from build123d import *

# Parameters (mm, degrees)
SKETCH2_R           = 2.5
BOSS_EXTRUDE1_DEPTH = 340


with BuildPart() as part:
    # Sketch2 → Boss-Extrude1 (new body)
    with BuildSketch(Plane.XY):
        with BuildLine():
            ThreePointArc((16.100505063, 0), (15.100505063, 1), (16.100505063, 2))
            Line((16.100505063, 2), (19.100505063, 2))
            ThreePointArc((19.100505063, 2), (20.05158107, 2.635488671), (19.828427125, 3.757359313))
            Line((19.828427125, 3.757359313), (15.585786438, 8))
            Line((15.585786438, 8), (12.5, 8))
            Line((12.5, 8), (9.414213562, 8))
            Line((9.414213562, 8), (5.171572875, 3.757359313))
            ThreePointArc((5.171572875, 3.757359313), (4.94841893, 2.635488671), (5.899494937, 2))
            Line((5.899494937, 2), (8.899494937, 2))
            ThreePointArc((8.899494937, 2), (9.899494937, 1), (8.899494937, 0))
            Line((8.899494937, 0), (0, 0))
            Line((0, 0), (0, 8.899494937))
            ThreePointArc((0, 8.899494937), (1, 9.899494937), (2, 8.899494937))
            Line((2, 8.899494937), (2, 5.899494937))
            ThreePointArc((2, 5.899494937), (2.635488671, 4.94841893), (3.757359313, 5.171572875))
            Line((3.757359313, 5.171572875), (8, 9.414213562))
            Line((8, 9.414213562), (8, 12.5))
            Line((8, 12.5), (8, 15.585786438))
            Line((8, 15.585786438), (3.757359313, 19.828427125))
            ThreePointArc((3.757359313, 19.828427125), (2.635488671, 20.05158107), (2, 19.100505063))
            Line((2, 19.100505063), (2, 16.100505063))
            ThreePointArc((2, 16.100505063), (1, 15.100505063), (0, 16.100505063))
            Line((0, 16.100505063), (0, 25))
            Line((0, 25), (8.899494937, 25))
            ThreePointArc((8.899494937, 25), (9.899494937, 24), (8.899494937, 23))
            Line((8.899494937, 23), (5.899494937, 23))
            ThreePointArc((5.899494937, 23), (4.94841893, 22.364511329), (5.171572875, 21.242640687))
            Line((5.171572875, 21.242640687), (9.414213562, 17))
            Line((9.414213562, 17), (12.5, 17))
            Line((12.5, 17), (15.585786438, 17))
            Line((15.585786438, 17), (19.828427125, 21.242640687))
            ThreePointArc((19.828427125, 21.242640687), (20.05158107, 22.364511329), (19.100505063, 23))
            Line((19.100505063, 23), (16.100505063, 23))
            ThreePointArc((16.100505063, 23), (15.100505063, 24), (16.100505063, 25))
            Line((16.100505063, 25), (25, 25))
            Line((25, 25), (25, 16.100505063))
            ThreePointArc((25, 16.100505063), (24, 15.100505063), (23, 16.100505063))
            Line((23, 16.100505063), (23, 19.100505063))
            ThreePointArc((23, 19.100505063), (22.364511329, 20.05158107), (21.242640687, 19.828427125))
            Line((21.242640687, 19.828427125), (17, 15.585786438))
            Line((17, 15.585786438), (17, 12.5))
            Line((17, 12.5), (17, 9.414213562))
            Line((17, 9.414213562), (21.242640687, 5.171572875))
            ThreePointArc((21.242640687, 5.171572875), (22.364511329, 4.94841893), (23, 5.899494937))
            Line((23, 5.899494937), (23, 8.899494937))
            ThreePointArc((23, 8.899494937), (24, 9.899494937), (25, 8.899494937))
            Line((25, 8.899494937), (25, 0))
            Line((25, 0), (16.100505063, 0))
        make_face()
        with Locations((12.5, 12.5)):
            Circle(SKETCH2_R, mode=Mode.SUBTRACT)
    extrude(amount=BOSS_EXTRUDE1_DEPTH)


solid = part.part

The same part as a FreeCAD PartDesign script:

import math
import FreeCAD as App
import Part
import Sketcher

doc = App.newDocument("Part")
body = doc.addObject("PartDesign::Body", "Body")

# Sketch on XY plane
sketch1 = body.newObject("Sketcher::SketchObject", "Sketch")
sketch1.AttachmentSupport = (doc.getObject("XY_Plane"), [""])
sketch1.MapMode = "FlatFace"
sketch1.addGeometry([
    Part.ArcOfCircle(Part.Circle(App.Vector(16.1, 1, 0), App.Vector(0, 0, 1), 1), math.radians(90), math.radians(270)),  # 0
    Part.LineSegment(App.Vector(16.1, 0, 0), App.Vector(25, 0, 0)),  # 1
    Part.LineSegment(App.Vector(25, 0, 0), App.Vector(25, 8.9, 0)),  # 2
    Part.ArcOfCircle(Part.Circle(App.Vector(24, 8.9, 0), App.Vector(0, 0, 1), 1), math.radians(0), math.radians(180)),  # 3
    Part.LineSegment(App.Vector(23, 8.9, 0), App.Vector(23, 5.9, 0)),  # 4
    Part.ArcOfCircle(Part.Circle(App.Vector(22, 5.9, 0), App.Vector(0, 0, 1), 1), math.radians(-135), math.radians(0)),  # 5
    Part.LineSegment(App.Vector(21.2, 5.2, 0), App.Vector(17, 9.4, 0)),  # 6
    Part.LineSegment(App.Vector(17, 9.4, 0), App.Vector(17, 15.6, 0)),  # 7
    Part.LineSegment(App.Vector(17, 15.6, 0), App.Vector(21.2, 19.8, 0)),  # 8
    Part.ArcOfCircle(Part.Circle(App.Vector(22, 19.1, 0), App.Vector(0, 0, 1), 1), math.radians(0), math.radians(135)),  # 9
    Part.LineSegment(App.Vector(23, 19.1, 0), App.Vector(23, 16.1, 0)),  # 10
    Part.ArcOfCircle(Part.Circle(App.Vector(24, 16.1, 0), App.Vector(0, 0, 1), 1), math.radians(180), math.radians(360)),  # 11
    Part.LineSegment(App.Vector(25, 16.1, 0), App.Vector(25, 25, 0)),  # 12
    Part.LineSegment(App.Vector(25, 25, 0), App.Vector(16.1, 25, 0)),  # 13
    Part.ArcOfCircle(Part.Circle(App.Vector(16.1, 24, 0), App.Vector(0, 0, 1), 1), math.radians(90), math.radians(270)),  # 14
    Part.LineSegment(App.Vector(16.1, 23, 0), App.Vector(19.1, 23, 0)),  # 15
    Part.ArcOfCircle(Part.Circle(App.Vector(19.1, 22, 0), App.Vector(0, 0, 1), 1), math.radians(-45), math.radians(90)),  # 16
    Part.LineSegment(App.Vector(19.8, 21.2, 0), App.Vector(15.6, 17, 0)),  # 17
    Part.LineSegment(App.Vector(15.6, 17, 0), App.Vector(9.4, 17, 0)),  # 18
    Part.LineSegment(App.Vector(9.4, 17, 0), App.Vector(5.2, 21.2, 0)),  # 19
    Part.ArcOfCircle(Part.Circle(App.Vector(5.9, 22, 0), App.Vector(0, 0, 1), 1), math.radians(90), math.radians(225)),  # 20
    Part.LineSegment(App.Vector(5.9, 23, 0), App.Vector(8.9, 23, 0)),  # 21
    Part.ArcOfCircle(Part.Circle(App.Vector(8.9, 24, 0), App.Vector(0, 0, 1), 1), math.radians(-90), math.radians(90)),  # 22
    Part.LineSegment(App.Vector(8.9, 25, 0), App.Vector(0, 25, 0)),  # 23
    Part.LineSegment(App.Vector(0, 25, 0), App.Vector(0, 16.1, 0)),  # 24
    Part.ArcOfCircle(Part.Circle(App.Vector(1, 16.1, 0), App.Vector(0, 0, 1), 1), math.radians(180), math.radians(360)),  # 25
    Part.LineSegment(App.Vector(2, 16.1, 0), App.Vector(2, 19.1, 0)),  # 26
    Part.ArcOfCircle(Part.Circle(App.Vector(3, 19.1, 0), App.Vector(0, 0, 1), 1), math.radians(45), math.radians(180)),  # 27
    Part.LineSegment(App.Vector(3.8, 19.8, 0), App.Vector(8, 15.6, 0)),  # 28
    Part.LineSegment(App.Vector(8, 15.6, 0), App.Vector(8, 9.4, 0)),  # 29
    Part.LineSegment(App.Vector(8, 9.4, 0), App.Vector(3.8, 5.2, 0)),  # 30
    Part.ArcOfCircle(Part.Circle(App.Vector(3, 5.9, 0), App.Vector(0, 0, 1), 1), math.radians(180), math.radians(315)),  # 31
    Part.LineSegment(App.Vector(2, 5.9, 0), App.Vector(2, 8.9, 0)),  # 32
    Part.ArcOfCircle(Part.Circle(App.Vector(1, 8.9, 0), App.Vector(0, 0, 1), 1), math.radians(0), math.radians(180)),  # 33
    Part.LineSegment(App.Vector(0, 8.9, 0), App.Vector(0, 0, 0)),  # 34
    Part.LineSegment(App.Vector(0, 0, 0), App.Vector(8.9, 0, 0)),  # 35
    Part.ArcOfCircle(Part.Circle(App.Vector(8.9, 1, 0), App.Vector(0, 0, 1), 1), math.radians(-90), math.radians(90)),  # 36
    Part.LineSegment(App.Vector(8.9, 2, 0), App.Vector(5.9, 2, 0)),  # 37
    Part.ArcOfCircle(Part.Circle(App.Vector(5.9, 3, 0), App.Vector(0, 0, 1), 1), math.radians(135), math.radians(270)),  # 38
    Part.LineSegment(App.Vector(5.2, 3.8, 0), App.Vector(9.4, 8, 0)),  # 39
    Part.LineSegment(App.Vector(9.4, 8, 0), App.Vector(15.6, 8, 0)),  # 40
    Part.LineSegment(App.Vector(15.6, 8, 0), App.Vector(19.8, 3.8, 0)),  # 41
    Part.ArcOfCircle(Part.Circle(App.Vector(19.1, 3, 0), App.Vector(0, 0, 1), 1), math.radians(-90), math.radians(45)),  # 42
    Part.LineSegment(App.Vector(19.1, 2, 0), App.Vector(16.1, 2, 0)),  # 43
    Part.Circle(App.Vector(12.5, 12.5, 0), App.Vector(0, 0, 1), 2.5),  # 44
], False)
sketch1.addConstraint([
    Sketcher.Constraint("Tangent", 0, 2, 1, 1),
    Sketcher.Constraint("Coincident", 1, 2, 2, 1),
    Sketcher.Constraint("Tangent", 2, 2, 3, 1),
    Sketcher.Constraint("Tangent", 3, 2, 4, 1),
    Sketcher.Constraint("Tangent", 4, 2, 5, 2),
    Sketcher.Constraint("Tangent", 5, 1, 6, 1),
    Sketcher.Constraint("Coincident", 6, 2, 7, 1),
    Sketcher.Constraint("Coincident", 7, 2, 8, 1),
    Sketcher.Constraint("Tangent", 8, 2, 9, 2),
    Sketcher.Constraint("Tangent", 9, 1, 10, 1),
    Sketcher.Constraint("Tangent", 10, 2, 11, 1),
    Sketcher.Constraint("Tangent", 11, 2, 12, 1),
    Sketcher.Constraint("Coincident", 12, 2, 13, 1),
    Sketcher.Constraint("Tangent", 13, 2, 14, 1),
    Sketcher.Constraint("Tangent", 14, 2, 15, 1),
    Sketcher.Constraint("Tangent", 15, 2, 16, 2),
    Sketcher.Constraint("Tangent", 16, 1, 17, 1),
    Sketcher.Constraint("Coincident", 17, 2, 18, 1),
    Sketcher.Constraint("Coincident", 18, 2, 19, 1),
    Sketcher.Constraint("Tangent", 19, 2, 20, 2),
    Sketcher.Constraint("Tangent", 20, 1, 21, 1),
    Sketcher.Constraint("Tangent", 21, 2, 22, 1),
    Sketcher.Constraint("Tangent", 22, 2, 23, 1),
    Sketcher.Constraint("Coincident", 23, 2, 24, 1),
    Sketcher.Constraint("Tangent", 24, 2, 25, 1),
    Sketcher.Constraint("Tangent", 25, 2, 26, 1),
    Sketcher.Constraint("Tangent", 26, 2, 27, 2),
    Sketcher.Constraint("Tangent", 27, 1, 28, 1),
    Sketcher.Constraint("Coincident", 28, 2, 29, 1),
    Sketcher.Constraint("Coincident", 29, 2, 30, 1),
    Sketcher.Constraint("Tangent", 30, 2, 31, 2),
    Sketcher.Constraint("Tangent", 31, 1, 32, 1),
    Sketcher.Constraint("Tangent", 32, 2, 33, 1),
    Sketcher.Constraint("Tangent", 33, 2, 34, 1),
    Sketcher.Constraint("Coincident", 34, 2, 35, 1),
    Sketcher.Constraint("Tangent", 35, 2, 36, 1),
    Sketcher.Constraint("Tangent", 36, 2, 37, 1),
    Sketcher.Constraint("Tangent", 37, 2, 38, 2),
    Sketcher.Constraint("Tangent", 38, 1, 39, 1),
    Sketcher.Constraint("Coincident", 39, 2, 40, 1),
    Sketcher.Constraint("Coincident", 40, 2, 41, 1),
    Sketcher.Constraint("Tangent", 41, 2, 42, 2),
    Sketcher.Constraint("Tangent", 42, 1, 43, 1),
    Sketcher.Constraint("Tangent", 43, 2, 0, 1),
    Sketcher.Constraint("Horizontal", 1),
    Sketcher.Constraint("Vertical", 2),
    Sketcher.Constraint("Vertical", 4),
    Sketcher.Constraint("Vertical", 7),
    Sketcher.Constraint("Vertical", 10),
    Sketcher.Constraint("Vertical", 12),
    Sketcher.Constraint("Horizontal", 13),
    Sketcher.Constraint("Horizontal", 15),
    Sketcher.Constraint("Horizontal", 18),
    Sketcher.Constraint("Horizontal", 21),
    Sketcher.Constraint("Horizontal", 23),
    Sketcher.Constraint("Vertical", 24),
    Sketcher.Constraint("Vertical", 26),
    Sketcher.Constraint("Vertical", 29),
    Sketcher.Constraint("Vertical", 32),
    Sketcher.Constraint("Vertical", 34),
    Sketcher.Constraint("Horizontal", 35),
    Sketcher.Constraint("Horizontal", 37),
    Sketcher.Constraint("Horizontal", 40),
    Sketcher.Constraint("Horizontal", 43),
    Sketcher.Constraint("Coincident", 34, 2, -1, 1),
    Sketcher.Constraint("Equal", 0, 3),
    Sketcher.Constraint("Equal", 5, 9),
    Sketcher.Constraint("Equal", 3, 11),
    Sketcher.Constraint("Equal", 11, 14),
    Sketcher.Constraint("Equal", 9, 16),
    Sketcher.Constraint("Equal", 16, 20),
    Sketcher.Constraint("Equal", 14, 22),
    Sketcher.Constraint("Equal", 22, 25),
    Sketcher.Constraint("Equal", 20, 27),
    Sketcher.Constraint("Equal", 27, 31),
    Sketcher.Constraint("Equal", 25, 33),
    Sketcher.Constraint("Equal", 33, 36),
    Sketcher.Constraint("Equal", 31, 38),
    Sketcher.Constraint("Equal", 38, 42),
    Sketcher.Constraint("PointOnObject", 0, 2, -1),
    Sketcher.Constraint("PointOnObject", 23, 2, -2),
    Sketcher.Constraint("Perpendicular", 6, 8),
    Sketcher.Constraint("Parallel", 8, 17),
    Sketcher.Constraint("Perpendicular", 17, 19),
    Sketcher.Constraint("Parallel", 19, 28),
    Sketcher.Constraint("Perpendicular", 28, 30),
    Sketcher.Constraint("Parallel", 30, 39),
    Sketcher.Constraint("Perpendicular", 39, 41),
    Sketcher.Constraint("Horizontal", 16, 3, 20, 3),
    Sketcher.Constraint("Horizontal", 11, 3, 25, 3),
    Sketcher.Constraint("Horizontal", 9, 3, 27, 3),
    Sketcher.Constraint("Horizontal", 5, 3, 31, 3),
    Sketcher.Constraint("Horizontal", 3, 3, 33, 3),
    Sketcher.Constraint("Horizontal", 16, 1, 19, 2),
    Sketcher.Constraint("Horizontal", 7, 2, 28, 2),
    Sketcher.Constraint("Horizontal", 6, 2, 29, 2),
    Sketcher.Constraint("Vertical", 0, 3, 14, 3),
    Sketcher.Constraint("Vertical", 22, 3, 36, 3),
    Sketcher.Constraint("Vertical", 20, 3, 38, 3),
    Sketcher.Constraint("Vertical", 16, 3, 42, 3),
    Sketcher.Constraint("Vertical", 18, 2, 39, 2),
    Sketcher.Constraint("Equal", 15, 21),
    Sketcher.Constraint("Equal", 13, 23),
    Sketcher.Constraint("Equal", 35, 2),
    Sketcher.Constraint("Equal", 43, 4),
    Sketcher.Constraint("Equal", 40, 7),
    Sketcher.Constraint("Equal", 4, 10),
    Sketcher.Constraint("Equal", 2, 12),
    Sketcher.Constraint("Equal", 8, 17),
    Sketcher.Constraint("Diameter", 44, 5.0),
    Sketcher.Constraint("Radius", 0, 1.0),
    Sketcher.Constraint("DistanceX", 15, 1, 15, 2, 3.0),
    Sketcher.Constraint("Distance", 6, 6.0),
    Sketcher.Constraint("DistanceX", -1, 1, 3, 3, 24.0),
    Sketcher.Constraint("DistanceX", -1, 1, 6, 2, 17.0),
    Sketcher.Constraint("DistanceX", -1, 1, 44, 3, 12.5),
    Sketcher.Constraint("DistanceY", -1, 1, 44, 3, 12.5),
    Sketcher.Constraint("DistanceX", 1, 1, 1, 2, 8.899495),
])
pad1 = body.newObject("PartDesign::Pad", "Pad")
pad1.Profile = sketch1
pad1.Length = 340

doc.recompute()
